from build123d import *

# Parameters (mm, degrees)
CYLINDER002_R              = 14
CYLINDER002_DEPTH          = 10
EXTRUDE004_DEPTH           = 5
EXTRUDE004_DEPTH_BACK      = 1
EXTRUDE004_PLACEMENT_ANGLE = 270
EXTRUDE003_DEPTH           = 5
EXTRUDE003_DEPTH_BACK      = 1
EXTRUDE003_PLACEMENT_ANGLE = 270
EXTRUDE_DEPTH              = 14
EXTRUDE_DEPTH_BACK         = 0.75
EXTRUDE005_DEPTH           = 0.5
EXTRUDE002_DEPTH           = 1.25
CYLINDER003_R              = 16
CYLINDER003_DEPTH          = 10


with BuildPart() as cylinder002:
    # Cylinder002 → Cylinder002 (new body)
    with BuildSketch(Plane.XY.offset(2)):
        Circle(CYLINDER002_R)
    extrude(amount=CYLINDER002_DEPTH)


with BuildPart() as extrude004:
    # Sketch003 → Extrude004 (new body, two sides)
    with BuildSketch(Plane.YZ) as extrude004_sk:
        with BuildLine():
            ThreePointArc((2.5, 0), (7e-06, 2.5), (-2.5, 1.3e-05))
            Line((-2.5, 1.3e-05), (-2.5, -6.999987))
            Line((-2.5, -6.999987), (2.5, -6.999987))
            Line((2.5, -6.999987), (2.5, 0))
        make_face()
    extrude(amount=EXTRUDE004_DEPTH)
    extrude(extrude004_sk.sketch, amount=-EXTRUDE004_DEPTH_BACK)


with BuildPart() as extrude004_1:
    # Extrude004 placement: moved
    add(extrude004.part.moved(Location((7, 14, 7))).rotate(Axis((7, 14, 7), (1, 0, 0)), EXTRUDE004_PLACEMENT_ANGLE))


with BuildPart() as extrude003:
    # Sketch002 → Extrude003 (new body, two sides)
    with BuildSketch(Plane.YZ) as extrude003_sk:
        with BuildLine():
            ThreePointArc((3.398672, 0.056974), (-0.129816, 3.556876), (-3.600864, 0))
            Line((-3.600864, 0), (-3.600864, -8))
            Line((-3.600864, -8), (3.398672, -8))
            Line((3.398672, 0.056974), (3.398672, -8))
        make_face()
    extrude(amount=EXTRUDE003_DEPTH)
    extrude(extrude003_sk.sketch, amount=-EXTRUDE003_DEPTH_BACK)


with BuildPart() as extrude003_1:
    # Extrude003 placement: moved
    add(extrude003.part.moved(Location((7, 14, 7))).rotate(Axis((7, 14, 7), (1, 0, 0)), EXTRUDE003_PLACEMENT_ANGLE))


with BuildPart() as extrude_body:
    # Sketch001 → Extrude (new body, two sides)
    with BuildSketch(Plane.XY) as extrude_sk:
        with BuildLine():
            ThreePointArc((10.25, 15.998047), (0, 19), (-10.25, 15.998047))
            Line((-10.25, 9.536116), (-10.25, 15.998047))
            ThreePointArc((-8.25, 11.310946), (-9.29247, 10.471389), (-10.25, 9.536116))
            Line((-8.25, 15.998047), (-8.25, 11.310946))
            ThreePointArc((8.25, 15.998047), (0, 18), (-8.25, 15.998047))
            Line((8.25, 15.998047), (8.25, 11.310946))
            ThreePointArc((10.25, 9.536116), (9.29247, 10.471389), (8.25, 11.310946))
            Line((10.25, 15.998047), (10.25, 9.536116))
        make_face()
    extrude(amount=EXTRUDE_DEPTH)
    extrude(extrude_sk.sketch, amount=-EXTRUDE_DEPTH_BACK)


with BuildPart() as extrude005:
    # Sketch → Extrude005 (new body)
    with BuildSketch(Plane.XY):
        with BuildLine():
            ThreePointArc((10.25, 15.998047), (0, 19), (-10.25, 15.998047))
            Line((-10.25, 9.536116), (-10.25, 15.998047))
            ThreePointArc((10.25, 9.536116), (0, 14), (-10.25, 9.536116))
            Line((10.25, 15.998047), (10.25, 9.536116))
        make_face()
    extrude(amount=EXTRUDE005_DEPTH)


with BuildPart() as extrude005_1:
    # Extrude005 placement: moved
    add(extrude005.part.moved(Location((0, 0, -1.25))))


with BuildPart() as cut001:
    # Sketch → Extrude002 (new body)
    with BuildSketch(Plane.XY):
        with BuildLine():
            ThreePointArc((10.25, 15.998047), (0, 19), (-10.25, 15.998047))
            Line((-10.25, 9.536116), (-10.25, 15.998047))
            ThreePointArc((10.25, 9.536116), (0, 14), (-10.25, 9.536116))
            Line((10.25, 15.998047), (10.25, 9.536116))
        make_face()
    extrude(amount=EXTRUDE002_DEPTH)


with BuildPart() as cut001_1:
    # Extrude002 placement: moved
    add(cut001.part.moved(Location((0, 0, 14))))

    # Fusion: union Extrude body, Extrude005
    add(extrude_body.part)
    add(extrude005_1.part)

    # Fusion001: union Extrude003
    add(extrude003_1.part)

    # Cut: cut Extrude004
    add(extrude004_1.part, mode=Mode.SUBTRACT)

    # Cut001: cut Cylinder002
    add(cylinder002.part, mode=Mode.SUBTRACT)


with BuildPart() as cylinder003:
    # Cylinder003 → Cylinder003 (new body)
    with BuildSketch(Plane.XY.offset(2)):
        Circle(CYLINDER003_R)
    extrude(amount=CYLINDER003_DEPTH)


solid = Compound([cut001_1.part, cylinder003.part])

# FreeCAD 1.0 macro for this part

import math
import FreeCAD as App
import Part
import Sketcher
Q = App.Units.Quantity

doc = App.newDocument("Part")
params = doc.addObject("Spreadsheet::Sheet", "Params")
for row, (alias, value) in enumerate([
    ("sketch1_diameter", "28 mm"),
    ("pad1_length", "10 mm"),
    ("sketch2_radius", "2.5 mm"),
    ("sketch2_height", "7 mm"),
    ("pad2_length", "5 mm"),
    ("pad2_length2", "1 mm"),
    ("sketch3_radius", "3.5 mm"),
    ("sketch3_height", "8 mm"),
    ("pad3_length", "5 mm"),
    ("pad3_length2", "1 mm"),
    ("sketch4_radius", "19.000001 mm"),
    ("sketch4_radius2", "18.000002 mm"),
    ("pad4_length", "14 mm"),
    ("pad4_length2", "0.75 mm"),
    ("sketch5_radius", "19.000001 mm"),
    ("sketch5_radius2", "14.000001 mm"),
    ("pad5_length", "0.5 mm"),
    ("sketch6_radius", "19.000001 mm"),
    ("sketch6_radius2", "14.000001 mm"),
    ("pad6_length", "1.25 mm"),
    ("sketch7_diameter", "32 mm"),
    ("pad7_length", "10 mm"),
], start=1):
    params.set(f"A{row}", alias)
    params.set(f"B{row}", "=" + value)
    params.setAlias(f"B{row}", alias)

body = doc.addObject("PartDesign::Body", "Body")

# Sketch on XY plane
sketch1 = doc.addObject("Sketcher::SketchObject", "Sketch")
body.addObject(sketch1)
sketch1.AttachmentSupport = (doc.XY_Plane, [""])
sketch1.MapMode = "FlatFace"
sketch1.AttachmentOffset = App.Placement(App.Vector(0, 0, 2), App.Rotation())
sketch1.addGeometry(Part.Circle(App.Vector(0, 0, 0), App.Vector(0, 0, 1), 14), False)
sketch1.addConstraint([
    Sketcher.Constraint("Coincident", 0, 3, -1, 1),
    Sketcher.Constraint("Diameter", 0, Q("28 mm")),
])
sketch1.setExpression("Constraints[1]", "Params.sketch1_diameter")
pad1 = doc.addObject("PartDesign::Pad", "Pad")
body.addObject(pad1)
pad1.Profile = sketch1
pad1.setExpression("Length", "Params.pad1_length")
body2 = doc.addObject("PartDesign::Body", "Body001")

# Sketch on YZ plane
sketch2 = doc.addObject("Sketcher::SketchObject", "Sketch001")
body2.addObject(sketch2)
sketch2.AttachmentSupport = (doc.getObject("YZ_Plane001"), [""])
sketch2.MapMode = "FlatFace"
sketch2.addGeometry([
    Part.ArcOfCircle(Part.Circle(App.Vector(0, 0, 0), App.Vector(0, 0, 1), 2.5), math.radians(0), math.radians(180)),
    Part.LineSegment(App.Vector(-2.5, 0, 0), App.Vector(-2.5, -7, 0)),
    Part.LineSegment(App.Vector(-2.5, -7, 0), App.Vector(2.5, -7, 0)),
    Part.LineSegment(App.Vector(2.5, -7, 0), App.Vector(2.5, 0, 0)),
], False)
sketch2.addConstraint([
    Sketcher.Constraint("Coincident", 0, 2, 1, 1),
    Sketcher.Constraint("Coincident", 1, 2, 2, 1),
    Sketcher.Constraint("Coincident", 2, 2, 3, 1),
    Sketcher.Constraint("Tangent", 3, 2, 0, 1),
    Sketcher.Constraint("Vertical", 1),
    Sketcher.Constraint("Horizontal", 2),
    Sketcher.Constraint("Vertical", 3),
    Sketcher.Constraint("Coincident", 0, 3, -1, 1),
    Sketcher.Constraint("Radius", 0, Q("2.5 mm")),
    Sketcher.Constraint("DistanceY", 1, 2, 1, 1, Q("7 mm")),
    Sketcher.Constraint("DistanceY", 3, 1, 3, 2, Q("6.999987 mm")),
])
sketch2.setExpression("Constraints[8]", "Params.sketch2_radius")
sketch2.setExpression("Constraints[9]", "Params.sketch2_height")
pad2 = doc.addObject("PartDesign::Pad", "Pad001")
body2.addObject(pad2)
pad2.Profile = sketch2
pad2.Type = "TwoLengths"
pad2.setExpression("Length", "Params.pad2_length")
pad2.setExpression("Length2", "Params.pad2_length2")
body3 = doc.addObject("PartDesign::Body", "Body002")
doc.recompute()

body2.Placement = App.Placement(App.Vector(7, 14, 7), App.Rotation(App.Vector(1, 0, 0), 270))
boolean = doc.addObject("PartDesign::Boolean", "Boolean")
body3.addObject(boolean)
boolean.Type = "Fuse"
boolean.addObjects([body2])
body4 = doc.addObject("PartDesign::Body", "Body003")

# Sketch on YZ plane
sketch3 = doc.addObject("Sketcher::SketchObject", "Sketch002")
body4.addObject(sketch3)
sketch3.AttachmentSupport = (doc.getObject("YZ_Plane003"), [""])
sketch3.MapMode = "FlatFace"
sketch3.addGeometry([
    Part.ArcOfCircle(Part.Circle(App.Vector(-0.1, 0.1, 0), App.Vector(0, 0, 1), 3.5), math.radians(0), math.radians(181)),
    Part.LineSegment(App.Vector(-3.6, 0, 0), App.Vector(-3.6, -8, 0)),
    Part.LineSegment(App.Vector(-3.6, -8, 0), App.Vector(3.4, -8, 0)),
    Part.LineSegment(App.Vector(3.4, -8, 0), App.Vector(3.4, 0.1, 0)),
], False)
sketch3.addConstraint([
    Sketcher.Constraint("Coincident", 0, 2, 1, 1),
    Sketcher.Constraint("Coincident", 1, 2, 2, 1),
    Sketcher.Constraint("Coincident", 2, 2, 3, 1),
    Sketcher.Constraint("Coincident", 3, 2, 0, 1),
    Sketcher.Constraint("Vertical", 1),
    Sketcher.Constraint("Horizontal", 2),
    Sketcher.Constraint("Vertical", 3),
    Sketcher.Constraint("PointOnObject", 0, 2, -1),
    Sketcher.Constraint("Radius", 0, Q("3.5 mm")),
    Sketcher.Constraint("DistanceY", 1, 2, 1, 1, Q("8 mm")),
    Sketcher.Constraint("DistanceX", 2, 1, 2, 2, Q("6.999536 mm")),
    Sketcher.Constraint("DistanceY", 3, 1, 3, 2, Q("8.056974 mm")),
    Sketcher.Constraint("DistanceX", 0, 3, -1, 1, Q("0.101328 mm")),
])
sketch3.setExpression("Constraints[8]", "Params.sketch3_radius")
sketch3.setExpression("Constraints[9]", "Params.sketch3_height")
pad3 = doc.addObject("PartDesign::Pad", "Pad002")
body4.addObject(pad3)
pad3.Profile = sketch3
pad3.Type = "TwoLengths"
pad3.setExpression("Length", "Params.pad3_length")
pad3.setExpression("Length2", "Params.pad3_length2")
body5 = doc.addObject("PartDesign::Body", "Body004")
doc.recompute()

body4.Placement = App.Placement(App.Vector(7, 14, 7), App.Rotation(App.Vector(1, 0, 0), 270))
boolean2 = doc.addObject("PartDesign::Boolean", "Boolean001")
body5.addObject(boolean2)
boolean2.Type = "Fuse"
boolean2.addObjects([body4])
body6 = doc.addObject("PartDesign::Body", "Body005")

# Sketch on XY plane
sketch4 = doc.addObject("Sketcher::SketchObject", "Sketch003")
body6.addObject(sketch4)
sketch4.AttachmentSupport = (doc.getObject("XY_Plane005"), [""])
sketch4.MapMode = "FlatFace"
sketch4.addGeometry([
    Part.ArcOfCircle(Part.Circle(App.Vector(0, -0.000001, 0), App.Vector(0, 0, 1), 19.000001), math.radians(57.352185), math.radians(122.647815)),  # 0
    Part.LineSegment(App.Vector(-10.25, 15.998047, 0), App.Vector(-10.25, 9.536116, 0)),  # 1
    Part.ArcOfCircle(Part.Circle(App.Vector(0.00009, -0.000104, 0), App.Vector(0, 0, 1), 14.000137), math.radians(126.106384), math.radians(137.066278)),  # 2
    Part.LineSegment(App.Vector(-8.25, 11.310946, 0), App.Vector(-8.25, 15.998047, 0)),  # 3
    Part.ArcOfCircle(Part.Circle(App.Vector(0, -0.000002, 0), App.Vector(0, 0, 1), 18.000002), math.radians(62.72039), math.radians(117.27961)),  # 4
    Part.LineSegment(App.Vector(8.25, 15.998047, 0), App.Vector(8.25, 11.310946, 0)),  # 5
    Part.ArcOfCircle(Part.Circle(App.Vector(-0.00009, -0.000104, 0), App.Vector(0, 0, 1), 14.000137), math.radians(42.933722), math.radians(53.893616)),  # 6
    Part.LineSegment(App.Vector(10.25, 9.536116, 0), App.Vector(10.25, 15.998047, 0)),  # 7
], False)
sketch4.addConstraint([
    Sketcher.Constraint("Coincident", 0, 2, 1, 1),
    Sketcher.Constraint("Coincident", 1, 2, 2, 2),
    Sketcher.Constraint("Coincident", 2, 1, 3, 1),
    Sketcher.Constraint("Coincident", 3, 2, 4, 2),
    Sketcher.Constraint("Coincident", 4, 1, 5, 1),
    Sketcher.Constraint("Coincident", 5, 2, 6, 2),
    Sketcher.Constraint("Coincident", 6, 1, 7, 1),
    Sketcher.Constraint("Coincident", 7, 2, 0, 1),
    Sketcher.Constraint("Vertical", 1),
    Sketcher.Constraint("Vertical", 3),
    Sketcher.Constraint("Vertical", 5),
    Sketcher.Constraint("Vertical", 7),
    Sketcher.Constraint("Coincident", 0, 3, -1, 1),
    Sketcher.Constraint("Coincident", 4, 3, -1, 1),
    Sketcher.Constraint("Equal", 2, 6),
    Sketcher.Constraint("Symmetric", 2, 3, 6, 3, -2),
    Sketcher.Constraint("Horizontal", 0, 2, 3, 2),
    Sketcher.Constraint("Horizontal", 3, 2, 4, 1),
    Sketcher.Constraint("Horizontal", 1, 2, 6, 1),
    Sketcher.Constraint("Radius", 0, Q("19.000001 mm")),
    Sketcher.Constraint("Radius", 4, Q("18.000002 mm")),
    Sketcher.Constraint("DistanceX", 1, 2, 2, 1, Q("2 mm")),
    Sketcher.Constraint("DistanceY", 3, 1, 3, 2, Q("4.687101 mm")),
    Sketcher.Constraint("Radius", 2, Q("14.000137 mm")),
    Sketcher.Constraint("DistanceY", 1, 2, 1, 1, Q("6.461931 mm")),
])
sketch4.setExpression("Constraints[19]", "Params.sketch4_radius")
sketch4.setExpression("Constraints[20]", "Params.sketch4_radius2")
pad4 = doc.addObject("PartDesign::Pad", "Pad003")
body6.addObject(pad4)
pad4.Profile = sketch4
pad4.Type = "TwoLengths"
pad4.setExpression("Length", "Params.pad4_length")
pad4.setExpression("Length2", "Params.pad4_length2")
body7 = doc.addObject("PartDesign::Body", "Body006")

# Sketch on XY plane
sketch5 = doc.addObject("Sketcher::SketchObject", "Sketch004")
body7.addObject(sketch5)
sketch5.AttachmentSupport = (doc.getObject("XY_Plane006"), [""])
sketch5.MapMode = "FlatFace"
sketch5.addGeometry([
    Part.ArcOfCircle(Part.Circle(App.Vector(0, 0, 0), App.Vector(0, 0, 1), 19), math.radians(57), math.radians(123)),
    Part.LineSegment(App.Vector(-10, 16, 0), App.Vector(-10, 10, 0)),
    Part.ArcOfCircle(Part.Circle(App.Vector(0, 0, 0), App.Vector(0, 0, 1), 14), math.radians(43), math.radians(137)),
    Part.LineSegment(App.Vector(10, 10, 0), App.Vector(10, 16, 0)),
], False)
sketch5.addConstraint([
    Sketcher.Constraint("Coincident", 0, 2, 1, 1),
    Sketcher.Constraint("Coincident", 1, 2, 2, 2),
    Sketcher.Constraint("Coincident", 2, 1, 3, 1),
    Sketcher.Constraint("Coincident", 3, 2, 0, 1),
    Sketcher.Constraint("Vertical", 1),
    Sketcher.Constraint("Vertical", 3),
    Sketcher.Constraint("Coincident", 0, 3, -1, 1),
    Sketcher.Constraint("Coincident", 2, 3, -1, 1),
    Sketcher.Constraint("Horizontal", 1, 2, 2, 1),
    Sketcher.Constraint("Radius", 0, Q("19.000001 mm")),
    Sketcher.Constraint("Radius", 2, Q("14.000001 mm")),
    Sketcher.Constraint("DistanceX", 1, 2, 2, 1, Q("20.5 mm")),
])
sketch5.setExpression("Constraints[9]", "Params.sketch5_radius")
sketch5.setExpression("Constraints[10]", "Params.sketch5_radius2")
pad5 = doc.addObject("PartDesign::Pad", "Pad004")
body7.addObject(pad5)
pad5.Profile = sketch5
pad5.setExpression("Length", "Params.pad5_length")
body8 = doc.addObject("PartDesign::Body", "Body007")
doc.recompute()

body7.Placement = App.Placement(App.Vector(0, 0, -1.25), App.Rotation(App.Vector(0, 0, 1), 0))
boolean3 = doc.addObject("PartDesign::Boolean", "Boolean002")
body8.addObject(boolean3)
boolean3.Type = "Fuse"
boolean3.addObjects([body7])
body9 = doc.addObject("PartDesign::Body", "Body008")

# Sketch on XY plane
sketch6 = doc.addObject("Sketcher::SketchObject", "Sketch005")
body9.addObject(sketch6)
sketch6.AttachmentSupport = (doc.getObject("XY_Plane008"), [""])
sketch6.MapMode = "FlatFace"
sketch6.addGeometry([
    Part.ArcOfCircle(Part.Circle(App.Vector(0, 0, 0), App.Vector(0, 0, 1), 19), math.radians(57), math.radians(123)),
    Part.LineSegment(App.Vector(-10, 16, 0), App.Vector(-10, 10, 0)),
    Part.ArcOfCircle(Part.Circle(App.Vector(0, 0, 0), App.Vector(0, 0, 1), 14), math.radians(43), math.radians(137)),
    Part.LineSegment(App.Vector(10, 10, 0), App.Vector(10, 16, 0)),
], False)
sketch6.addConstraint([
    Sketcher.Constraint("Coincident", 0, 2, 1, 1),
    Sketcher.Constraint("Coincident", 1, 2, 2, 2),
    Sketcher.Constraint("Coincident", 2, 1, 3, 1),
    Sketcher.Constraint("Coincident", 3, 2, 0, 1),
    Sketcher.Constraint("Vertical", 1),
    Sketcher.Constraint("Vertical", 3),
    Sketcher.Constraint("Coincident", 0, 3, -1, 1),
    Sketcher.Constraint("Coincident", 2, 3, -1, 1),
    Sketcher.Constraint("Horizontal", 1, 2, 2, 1),
    Sketcher.Constraint("Radius", 0, Q("19.000001 mm")),
    Sketcher.Constraint("Radius", 2, Q("14.000001 mm")),
    Sketcher.Constraint("DistanceX", 1, 2, 2, 1, Q("20.5 mm")),
])
sketch6.setExpression("Constraints[9]", "Params.sketch6_radius")
sketch6.setExpression("Constraints[10]", "Params.sketch6_radius2")
pad6 = doc.addObject("PartDesign::Pad", "Pad005")
body9.addObject(pad6)
pad6.Profile = sketch6
pad6.setExpression("Length", "Params.pad6_length")
body10 = doc.addObject("PartDesign::Body", "Body009")
doc.recompute()

body9.Placement = App.Placement(App.Vector(0, 0, 14), App.Rotation(App.Vector(0, 0, 1), 0))
boolean4 = doc.addObject("PartDesign::Boolean", "Boolean003")
body10.addObject(boolean4)
boolean4.Type = "Fuse"
boolean4.addObjects([body9])
doc.recompute()

boolean5 = doc.addObject("PartDesign::Boolean", "Boolean004")
body10.addObject(boolean5)
boolean5.Type = "Fuse"
boolean5.addObjects([body6])
doc.recompute()

boolean6 = doc.addObject("PartDesign::Boolean", "Boolean005")
body10.addObject(boolean6)
boolean6.Type = "Fuse"
boolean6.addObjects([body8])
doc.recompute()

boolean7 = doc.addObject("PartDesign::Boolean", "Boolean006")
body10.addObject(boolean7)
boolean7.Type = "Fuse"
boolean7.addObjects([body5])
doc.recompute()

boolean8 = doc.addObject("PartDesign::Boolean", "Boolean007")
body10.addObject(boolean8)
boolean8.Type = "Cut"
boolean8.addObjects([body3])
doc.recompute()

boolean9 = doc.addObject("PartDesign::Boolean", "Boolean008")
body10.addObject(boolean9)
boolean9.Type = "Cut"
boolean9.addObjects([body])
body11 = doc.addObject("PartDesign::Body", "Body010")

# Sketch on XY plane
sketch7 = doc.addObject("Sketcher::SketchObject", "Sketch006")
body11.addObject(sketch7)
sketch7.AttachmentSupport = (doc.getObject("XY_Plane010"), [""])
sketch7.MapMode = "FlatFace"
sketch7.AttachmentOffset = App.Placement(App.Vector(0, 0, 2), App.Rotation())
sketch7.addGeometry(Part.Circle(App.Vector(0, 0, 0), App.Vector(0, 0, 1), 16), False)
sketch7.addConstraint([
    Sketcher.Constraint("Coincident", 0, 3, -1, 1),
    Sketcher.Constraint("Diameter", 0, Q("32 mm")),
])
sketch7.setExpression("Constraints[1]", "Params.sketch7_diameter")
pad7 = doc.addObject("PartDesign::Pad", "Pad006")
body11.addObject(pad7)
pad7.Profile = sketch7
pad7.setExpression("Length", "Params.pad7_length")

doc.recompute()
